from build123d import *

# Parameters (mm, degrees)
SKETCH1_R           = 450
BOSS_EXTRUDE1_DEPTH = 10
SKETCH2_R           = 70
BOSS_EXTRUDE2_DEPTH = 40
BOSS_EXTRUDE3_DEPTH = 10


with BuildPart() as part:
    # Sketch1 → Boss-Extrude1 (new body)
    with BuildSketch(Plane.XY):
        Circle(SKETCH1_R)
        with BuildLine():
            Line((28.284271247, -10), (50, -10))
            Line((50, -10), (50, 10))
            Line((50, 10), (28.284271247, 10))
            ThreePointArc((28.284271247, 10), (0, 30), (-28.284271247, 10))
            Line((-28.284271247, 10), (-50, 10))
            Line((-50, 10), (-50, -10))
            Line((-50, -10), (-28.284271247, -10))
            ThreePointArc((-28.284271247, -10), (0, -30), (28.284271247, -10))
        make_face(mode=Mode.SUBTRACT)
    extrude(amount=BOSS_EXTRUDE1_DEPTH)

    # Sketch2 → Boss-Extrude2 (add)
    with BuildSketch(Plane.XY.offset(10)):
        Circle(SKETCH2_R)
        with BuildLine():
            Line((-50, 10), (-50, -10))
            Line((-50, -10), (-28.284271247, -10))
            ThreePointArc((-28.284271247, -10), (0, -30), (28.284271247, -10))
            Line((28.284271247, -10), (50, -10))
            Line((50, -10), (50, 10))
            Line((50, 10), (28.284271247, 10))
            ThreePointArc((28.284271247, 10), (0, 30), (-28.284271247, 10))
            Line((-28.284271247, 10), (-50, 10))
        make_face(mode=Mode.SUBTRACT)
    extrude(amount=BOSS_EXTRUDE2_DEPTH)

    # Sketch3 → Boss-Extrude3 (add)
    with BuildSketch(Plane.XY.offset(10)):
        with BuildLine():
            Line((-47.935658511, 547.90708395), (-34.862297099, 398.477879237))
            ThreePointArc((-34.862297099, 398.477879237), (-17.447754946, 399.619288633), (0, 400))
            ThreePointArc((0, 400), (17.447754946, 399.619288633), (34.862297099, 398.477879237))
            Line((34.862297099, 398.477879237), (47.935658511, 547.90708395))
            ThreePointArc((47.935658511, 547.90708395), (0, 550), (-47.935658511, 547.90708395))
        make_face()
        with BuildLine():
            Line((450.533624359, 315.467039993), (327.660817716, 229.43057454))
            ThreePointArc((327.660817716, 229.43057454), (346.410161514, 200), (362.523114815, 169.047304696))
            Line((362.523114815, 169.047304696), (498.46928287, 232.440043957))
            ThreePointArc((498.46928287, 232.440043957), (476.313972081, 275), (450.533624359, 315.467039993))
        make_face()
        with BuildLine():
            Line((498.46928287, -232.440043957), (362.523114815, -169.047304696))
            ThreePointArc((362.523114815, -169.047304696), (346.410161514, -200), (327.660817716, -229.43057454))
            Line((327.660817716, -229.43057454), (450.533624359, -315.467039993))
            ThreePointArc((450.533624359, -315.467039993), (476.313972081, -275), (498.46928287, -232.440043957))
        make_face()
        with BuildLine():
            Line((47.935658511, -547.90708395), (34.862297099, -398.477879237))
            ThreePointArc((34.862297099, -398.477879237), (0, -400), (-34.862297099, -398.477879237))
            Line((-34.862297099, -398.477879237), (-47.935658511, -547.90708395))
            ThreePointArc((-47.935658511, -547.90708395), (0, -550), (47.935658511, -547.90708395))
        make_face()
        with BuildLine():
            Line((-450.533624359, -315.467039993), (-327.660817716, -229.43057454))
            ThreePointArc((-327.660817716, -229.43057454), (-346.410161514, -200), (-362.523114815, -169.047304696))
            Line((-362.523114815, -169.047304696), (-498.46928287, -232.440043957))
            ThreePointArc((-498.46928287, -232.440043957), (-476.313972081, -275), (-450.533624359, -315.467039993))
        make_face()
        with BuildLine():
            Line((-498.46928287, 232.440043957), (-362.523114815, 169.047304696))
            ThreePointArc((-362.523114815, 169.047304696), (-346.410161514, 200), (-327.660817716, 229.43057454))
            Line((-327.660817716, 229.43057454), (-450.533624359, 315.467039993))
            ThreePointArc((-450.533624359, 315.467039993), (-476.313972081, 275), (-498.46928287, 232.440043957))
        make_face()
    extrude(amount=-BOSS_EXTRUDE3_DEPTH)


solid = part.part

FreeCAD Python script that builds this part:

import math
import FreeCAD as App
import Part
import Sketcher
from FreeCAD import Vector
Q = App.Units.Quantity

doc = App.newDocument("Part")
params = doc.addObject("Spreadsheet::Sheet", "Params")
for row, (alias, value) in enumerate([
    ("sketch1_diameter", "900 mm"),
    ("sketch1_radius", "30 mm"),
    ("sketch1_height", "20 mm"),
    ("pad1_length", "10 mm"),
    ("sketch2_diameter", "140 mm"),
    ("sketch2_radius", "30 mm"),
    ("sketch2_height", "20 mm"),
    ("pad2_length", "40 mm"),
    ("sketch3_radius", "400 mm"),
    ("sketch3_radius2", "550 mm"),
    ("pad3_length", "10 mm"),
], start=1):
    params.set(f"A{row}", alias)
    params.set(f"B{row}", "=" + value)
    params.setAlias(f"B{row}", alias)

body = doc.addObject("PartDesign::Body", "Body")

sketch1 = doc.addObject("Sketcher::SketchObject", "Sketch")
body.addObject(sketch1)
sketch1.AttachmentSupport = (doc.XY_Plane, [""])
sketch1.MapMode = "FlatFace"
sketch1.addGeometry([
    Part.Circle(Vector(0, 0, 0), Vector(0, 0, 1), 450),
    Part.LineSegment(Vector(50, -10, 0), Vector(28, -10, 0)),
    Part.ArcOfCircle(Part.Circle(Vector(0, 0, 0), Vector(0, 0, 1), 30), math.radians(-161), math.radians(-19)),
    Part.LineSegment(Vector(-28, -10, 0), Vector(-50, -10, 0)),
    Part.LineSegment(Vector(-50, -10, 0), Vector(-50, 10, 0)),
    Part.LineSegment(Vector(-50, 10, 0), Vector(-28, 10, 0)),
    Part.ArcOfCircle(Part.Circle(Vector(0, 0, 0), Vector(0, 0, 1), 30), math.radians(19), math.radians(161)),
    Part.LineSegment(Vector(28, 10, 0), Vector(50, 10, 0)),
    Part.LineSegment(Vector(50, 10, 0), Vector(50, -10, 0)),
], False)
sketch1.addConstraint([
    Sketcher.Constraint("Coincident", 1, 2, 2, 2),
    Sketcher.Constraint("Coincident", 2, 1, 3, 1),
    Sketcher.Constraint("Coincident", 3, 2, 4, 1),
    Sketcher.Constraint("Coincident", 4, 2, 5, 1),
    Sketcher.Constraint("Coincident", 5, 2, 6, 2),
    Sketcher.Constraint("Coincident", 6, 1, 7, 1),
    Sketcher.Constraint("Coincident", 7, 2, 8, 1),
    Sketcher.Constraint("Coincident", 8, 2, 1, 1),
    Sketcher.Constraint("Horizontal", 1),
    Sketcher.Constraint("Horizontal", 3),
    Sketcher.Constraint("Vertical", 4),
    Sketcher.Constraint("Horizontal", 5),
    Sketcher.Constraint("Horizontal", 7),
    Sketcher.Constraint("Vertical", 8),
    Sketcher.Constraint("Coincident", 0, 3, -1, 1),
    Sketcher.Constraint("Coincident", 2, 3, -1, 1),
    Sketcher.Constraint("Coincident", 6, 3, -1, 1),
    Sketcher.Constraint("Equal", 2, 6),
    Sketcher.Constraint("Symmetric", 3, 2, 7, 2, -1, 1),
    Sketcher.Constraint("Horizontal", 1, 2, 2, 1),
    Sketcher.Constraint("Horizontal", 5, 2, 6, 1),
    Sketcher.Constraint("Diameter", 0, 900.0),
    Sketcher.Constraint("Radius", 2, 30.0),
    Sketcher.Constraint("DistanceY", 4, 1, 4, 2, 20.0),
    Sketcher.Constraint("DistanceX", 3, 2, -1, 1, 50.0),
])
sketch1.setExpression("Constraints[21]", "Params.sketch1_diameter")
sketch1.setExpression("Constraints[22]", "Params.sketch1_radius")
sketch1.setExpression("Constraints[23]", "Params.sketch1_height")
pad1 = doc.addObject("PartDesign::Pad", "Pad")
body.addObject(pad1)
pad1.Profile = sketch1
pad1.setExpression("Length", "Params.pad1_length")

sketch2 = doc.addObject("Sketcher::SketchObject", "Sketch001")
body.addObject(sketch2)
sketch2.AttachmentSupport = (doc.XY_Plane, [""])
sketch2.MapMode = "FlatFace"
sketch2.AttachmentOffset = App.Placement(Vector(0, 0, 10), App.Rotation())
sketch2.addGeometry([
    Part.Circle(Vector(0, 0, 0), Vector(0, 0, 1), 70),
    Part.LineSegment(Vector(-50, -10, 0), Vector(-50, 10, 0)),
    Part.LineSegment(Vector(-50, 10, 0), Vector(-28, 10, 0)),
    Part.ArcOfCircle(Part.Circle(Vector(0, 0, 0), Vector(0, 0, 1), 30), math.radians(19), math.radians(161)),
    Part.LineSegment(Vector(28, 10, 0), Vector(50, 10, 0)),
    Part.LineSegment(Vector(50, 10, 0), Vector(50, -10, 0)),
    Part.LineSegment(Vector(50, -10, 0), Vector(28, -10, 0)),
    Part.ArcOfCircle(Part.Circle(Vector(0, 0, 0), Vector(0, 0, 1), 30), math.radians(-161), math.radians(-19)),
    Part.LineSegment(Vector(-28, -10, 0), Vector(-50, -10, 0)),
], False)
sketch2.addConstraint([
    Sketcher.Constraint("Coincident", 1, 2, 2, 1),
    Sketcher.Constraint("Coincident", 2, 2, 3, 2),
    Sketcher.Constraint("Coincident", 3, 1, 4, 1),
    Sketcher.Constraint("Coincident", 4, 2, 5, 1),
    Sketcher.Constraint("Coincident", 5, 2, 6, 1),
    Sketcher.Constraint("Coincident", 6, 2, 7, 2),
    Sketcher.Constraint("Coincident", 7, 1, 8, 1),
    Sketcher.Constraint("Coincident", 8, 2, 1, 1),
    Sketcher.Constraint("Vertical", 1),
    Sketcher.Constraint("Horizontal", 2),
    Sketcher.Constraint("Horizontal", 4),
    Sketcher.Constraint("Vertical", 5),
    Sketcher.Constraint("Horizontal", 6),
    Sketcher.Constraint("Horizontal", 8),
    Sketcher.Constraint("Coincident", 0, 3, -1, 1),
    Sketcher.Constraint("Coincident", 3, 3, -1, 1),
    Sketcher.Constraint("Coincident", 7, 3, -1, 1),
    Sketcher.Constraint("Equal", 3, 7),
    Sketcher.Constraint("Symmetric", 1, 2, 5, 2, -1, 1),
    Sketcher.Constraint("Horizontal", 2, 2, 3, 1),
    Sketcher.Constraint("Horizontal", 6, 2, 7, 1),
    Sketcher.Constraint("Diameter", 0, 140.0),
    Sketcher.Constraint("Radius", 3, 30.0),
    Sketcher.Constraint("DistanceY", 1, 1, 1, 2, 20.0),
    Sketcher.Constraint("DistanceX", 1, 2, -1, 1, 50.0),
])
sketch2.setExpression("Constraints[21]", "Params.sketch2_diameter")
sketch2.setExpression("Constraints[22]", "Params.sketch2_radius")
sketch2.setExpression("Constraints[23]", "Params.sketch2_height")
pad2 = doc.addObject("PartDesign::Pad", "Pad001")
body.addObject(pad2)
pad2.Profile = sketch2
pad2.setExpression("Length", "Params.pad2_length")

sketch3 = doc.addObject("Sketcher::SketchObject", "Sketch002")
body.addObject(sketch3)
sketch3.AttachmentSupport = (doc.XY_Plane, [""])
sketch3.MapMode = "FlatFace"
sketch3.AttachmentOffset = App.Placement(Vector(0, 0, 10), App.Rotation())
sketch3.addGeometry([
    Part.LineSegment(Vector(-48, 548, 0), Vector(-35, 398, 0)),
    Part.ArcOfCircle(Part.Circle(Vector(0, 0, 0), Vector(0, 0, 1), 400), math.radians(90), math.radians(95)),
    Part.ArcOfCircle(Part.Circle(Vector(0, 0, 0), Vector(0, 0, 1), 400), math.radians(85), math.radians(90)),
    Part.LineSegment(Vector(35, 398, 0), Vector(48, 548, 0)),
    Part.ArcOfCircle(Part.Circle(Vector(0, 0, 0), Vector(0, 0, 1), 550), math.radians(85), math.radians(95)),
    Part.LineSegment(Vector(451, 315, 0), Vector(328, 229, 0)),
    Part.ArcOfCircle(Part.Circle(Vector(0, 0, 0), Vector(0, 0, 1), 400), math.radians(25), math.radians(35)),
    Part.LineSegment(Vector(363, 169, 0), Vector(498, 232, 0)),
    Part.ArcOfCircle(Part.Circle(Vector(0, 0, 0), Vector(0, 0, 1), 550), math.radians(25), math.radians(35)),
    Part.LineSegment(Vector(498, -232, 0), Vector(363, -169, 0)),
    Part.ArcOfCircle(Part.Circle(Vector(0, 0, 0), Vector(0, 0, 1), 400), math.radians(-35), math.radians(-25)),
    Part.LineSegment(Vector(328, -229, 0), Vector(451, -315, 0)),
    Part.ArcOfCircle(Part.Circle(Vector(0, 0, 0), Vector(0, 0, 1), 550), math.radians(-35), math.radians(-25)),
    Part.LineSegment(Vector(48, -548, 0), Vector(35, -398, 0)),
    Part.ArcOfCircle(Part.Circle(Vector(0, 0, 0), Vector(0, 0, 1), 400), math.radians(-95), math.radians(-85)),
    Part.LineSegment(Vector(-35, -398, 0), Vector(-48, -548, 0)),
    Part.ArcOfCircle(Part.Circle(Vector(0, 0, 0), Vector(0, 0, 1), 550), math.radians(-95), math.radians(-85)),
    Part.LineSegment(Vector(-451, -315, 0), Vector(-328, -229, 0)),
    Part.ArcOfCircle(Part.Circle(Vector(0, 0, 0), Vector(0, 0, 1), 400), math.radians(-155), math.radians(-145)),
    Part.LineSegment(Vector(-363, -169, 0), Vector(-498, -232, 0)),
    Part.ArcOfCircle(Part.Circle(Vector(0, 0, 0), Vector(0, 0, 1), 550), math.radians(-155), math.radians(-145)),
    Part.LineSegment(Vector(-498, 232, 0), Vector(-363, 169, 0)),
    Part.ArcOfCircle(Part.Circle(Vector(0, 0, 0), Vector(0, 0, 1), 400), math.radians(145), math.radians(155)),
    Part.LineSegment(Vector(-328, 229, 0), Vector(-451, 315, 0)),
    Part.ArcOfCircle(Part.Circle(Vector(0, 0, 0), Vector(0, 0, 1), 550), math.radians(145), math.radians(155)),
], False)
sketch3.addConstraint([
    Sketcher.Constraint("Coincident", 0, 2, 1, 2),
    Sketcher.Constraint("Tangent", 1, 1, 2, 2),
    Sketcher.Constraint("Coincident", 2, 1, 3, 1),
    Sketcher.Constraint("Coincident", 3, 2, 4, 1),
    Sketcher.Constraint("Coincident", 4, 2, 0, 1),
    Sketcher.Constraint("Coincident", 5, 2, 6, 2),
    Sketcher.Constraint("Coincident", 6, 1, 7, 1),
    Sketcher.Constraint("Coincident", 7, 2, 8, 1),
    Sketcher.Constraint("Coincident", 8, 2, 5, 1),
    Sketcher.Constraint("Coincident", 9, 2, 10, 2),
    Sketcher.Constraint("Coincident", 10, 1, 11, 1),
    Sketcher.Constraint("Coincident", 11, 2, 12, 1),
    Sketcher.Constraint("Coincident", 12, 2, 9, 1),
    Sketcher.Constraint("Coincident", 13, 2, 14, 2),
    Sketcher.Constraint("Coincident", 14, 1, 15, 1),
    Sketcher.Constraint("Coincident", 15, 2, 16, 1),
    Sketcher.Constraint("Coincident", 16, 2, 13, 1),
    Sketcher.Constraint("Coincident", 17, 2, 18, 2),
    Sketcher.Constraint("Coincident", 18, 1, 19, 1),
    Sketcher.Constraint("Coincident", 19, 2, 20, 1),
    Sketcher.Constraint("Coincident", 20, 2, 17, 1),
    Sketcher.Constraint("Coincident", 21, 2, 22, 2),
    Sketcher.Constraint("Coincident", 22, 1, 23, 1),
    Sketcher.Constraint("Coincident", 23, 2, 24, 1),
    Sketcher.Constraint("Coincident", 24, 2, 21, 1),
    Sketcher.Constraint("Coincident", 1, 3, -1, 1),
    Sketcher.Constraint("Coincident", 4, 3, -1, 1),
    Sketcher.Constraint("Coincident", 6, 3, -1, 1),
    Sketcher.Constraint("Coincident", 8, 3, -1, 1),
    Sketcher.Constraint("Coincident", 10, 3, -1, 1),
    Sketcher.Constraint("Coincident", 12, 3, -1, 1),
    Sketcher.Constraint("Coincident", 14, 3, -1, 1),
    Sketcher.Constraint("Coincident", 16, 3, -1, 1),
    Sketcher.Constraint("Coincident", 18, 3, -1, 1),
    Sketcher.Constraint("Coincident", 20, 3, -1, 1),
    Sketcher.Constraint("Coincident", 22, 3, -1, 1),
    Sketcher.Constraint("Coincident", 24, 3, -1, 1),
    Sketcher.Constraint("Equal", 1, 2),
    Sketcher.Constraint("Equal", 2, 6),
    Sketcher.Constraint("Equal", 4, 8),
    Sketcher.Constraint("Equal", 6, 10),
    Sketcher.Constraint("Equal", 8, 12),
    Sketcher.Constraint("Equal", 10, 14),
    Sketcher.Constraint("Equal", 12, 16),
    Sketcher.Constraint("Equal", 14, 18),
    Sketcher.Constraint("Equal", 16, 20),
    Sketcher.Constraint("Equal", 18, 22),
    Sketcher.Constraint("Equal", 20, 24),
    Sketcher.Constraint("PointOnObject", 1, 1, -2),
    Sketcher.Constraint("Parallel", 0, 13),
    Sketcher.Constraint("Parallel", 3, 15),
    Sketcher.Constraint("Parallel", 5, 17),
    Sketcher.Constraint("Parallel", 7, 19),
    Sketcher.Constraint("Parallel", 9, 21),
    Sketcher.Constraint("Parallel", 11, 23),
    Sketcher.Constraint("Horizontal", 0, 2, 2, 1),
    Sketcher.Constraint("Horizontal", 3, 2, 4, 2),
    Sketcher.Constraint("Horizontal", 13, 2, 14, 1),
    Sketcher.Constraint("Horizontal", 10, 1, 17, 2),
    Sketcher.Constraint("Horizontal", 9, 2, 18, 1),
    Sketcher.Constraint("Horizontal", 12, 2, 19, 2),
    Sketcher.Constraint("Horizontal", 11, 2, 20, 2),
    Sketcher.Constraint("Horizontal", 6, 1, 21, 2),
    Sketcher.Constraint("Horizontal", 5, 2, 22, 1),
    Sketcher.Constraint("Radius", 1, 400.0),
    Sketcher.Constraint("Radius", 4, 550.0),
    Sketcher.Constraint("Angle", 0, Q("-85 deg")),
    Sketcher.Constraint("Angle", 5, Q("-145 deg")),
    Sketcher.Constraint("Angle", 7, Q("25 deg")),
    Sketcher.Constraint("DistanceY", -1, 1, 0, 2, 398.477879),
    Sketcher.Constraint("DistanceY", 11, 2, -1, 1, 315.46704),
    Sketcher.Constraint("DistanceY", 13, 2, -1, 1, 398.477879),
    Sketcher.Constraint("DistanceY", -1, 1, 23, 2, 315.46704),
    Sketcher.Constraint("DistanceY", 5, 2, 7, 2, 3.009469),
    Sketcher.Constraint("DistanceX", 9, 2, 11, 2, 88.01051),
])
sketch3.setExpression("Constraints[64]", "Params.sketch3_radius")
sketch3.setExpression("Constraints[65]", "Params.sketch3_radius2")
pad3 = doc.addObject("PartDesign::Pad", "Pad002")
body.addObject(pad3)
pad3.Profile = sketch3
pad3.setExpression("Length", "Params.pad3_length")
pad3.Reversed = True

doc.recompute()
